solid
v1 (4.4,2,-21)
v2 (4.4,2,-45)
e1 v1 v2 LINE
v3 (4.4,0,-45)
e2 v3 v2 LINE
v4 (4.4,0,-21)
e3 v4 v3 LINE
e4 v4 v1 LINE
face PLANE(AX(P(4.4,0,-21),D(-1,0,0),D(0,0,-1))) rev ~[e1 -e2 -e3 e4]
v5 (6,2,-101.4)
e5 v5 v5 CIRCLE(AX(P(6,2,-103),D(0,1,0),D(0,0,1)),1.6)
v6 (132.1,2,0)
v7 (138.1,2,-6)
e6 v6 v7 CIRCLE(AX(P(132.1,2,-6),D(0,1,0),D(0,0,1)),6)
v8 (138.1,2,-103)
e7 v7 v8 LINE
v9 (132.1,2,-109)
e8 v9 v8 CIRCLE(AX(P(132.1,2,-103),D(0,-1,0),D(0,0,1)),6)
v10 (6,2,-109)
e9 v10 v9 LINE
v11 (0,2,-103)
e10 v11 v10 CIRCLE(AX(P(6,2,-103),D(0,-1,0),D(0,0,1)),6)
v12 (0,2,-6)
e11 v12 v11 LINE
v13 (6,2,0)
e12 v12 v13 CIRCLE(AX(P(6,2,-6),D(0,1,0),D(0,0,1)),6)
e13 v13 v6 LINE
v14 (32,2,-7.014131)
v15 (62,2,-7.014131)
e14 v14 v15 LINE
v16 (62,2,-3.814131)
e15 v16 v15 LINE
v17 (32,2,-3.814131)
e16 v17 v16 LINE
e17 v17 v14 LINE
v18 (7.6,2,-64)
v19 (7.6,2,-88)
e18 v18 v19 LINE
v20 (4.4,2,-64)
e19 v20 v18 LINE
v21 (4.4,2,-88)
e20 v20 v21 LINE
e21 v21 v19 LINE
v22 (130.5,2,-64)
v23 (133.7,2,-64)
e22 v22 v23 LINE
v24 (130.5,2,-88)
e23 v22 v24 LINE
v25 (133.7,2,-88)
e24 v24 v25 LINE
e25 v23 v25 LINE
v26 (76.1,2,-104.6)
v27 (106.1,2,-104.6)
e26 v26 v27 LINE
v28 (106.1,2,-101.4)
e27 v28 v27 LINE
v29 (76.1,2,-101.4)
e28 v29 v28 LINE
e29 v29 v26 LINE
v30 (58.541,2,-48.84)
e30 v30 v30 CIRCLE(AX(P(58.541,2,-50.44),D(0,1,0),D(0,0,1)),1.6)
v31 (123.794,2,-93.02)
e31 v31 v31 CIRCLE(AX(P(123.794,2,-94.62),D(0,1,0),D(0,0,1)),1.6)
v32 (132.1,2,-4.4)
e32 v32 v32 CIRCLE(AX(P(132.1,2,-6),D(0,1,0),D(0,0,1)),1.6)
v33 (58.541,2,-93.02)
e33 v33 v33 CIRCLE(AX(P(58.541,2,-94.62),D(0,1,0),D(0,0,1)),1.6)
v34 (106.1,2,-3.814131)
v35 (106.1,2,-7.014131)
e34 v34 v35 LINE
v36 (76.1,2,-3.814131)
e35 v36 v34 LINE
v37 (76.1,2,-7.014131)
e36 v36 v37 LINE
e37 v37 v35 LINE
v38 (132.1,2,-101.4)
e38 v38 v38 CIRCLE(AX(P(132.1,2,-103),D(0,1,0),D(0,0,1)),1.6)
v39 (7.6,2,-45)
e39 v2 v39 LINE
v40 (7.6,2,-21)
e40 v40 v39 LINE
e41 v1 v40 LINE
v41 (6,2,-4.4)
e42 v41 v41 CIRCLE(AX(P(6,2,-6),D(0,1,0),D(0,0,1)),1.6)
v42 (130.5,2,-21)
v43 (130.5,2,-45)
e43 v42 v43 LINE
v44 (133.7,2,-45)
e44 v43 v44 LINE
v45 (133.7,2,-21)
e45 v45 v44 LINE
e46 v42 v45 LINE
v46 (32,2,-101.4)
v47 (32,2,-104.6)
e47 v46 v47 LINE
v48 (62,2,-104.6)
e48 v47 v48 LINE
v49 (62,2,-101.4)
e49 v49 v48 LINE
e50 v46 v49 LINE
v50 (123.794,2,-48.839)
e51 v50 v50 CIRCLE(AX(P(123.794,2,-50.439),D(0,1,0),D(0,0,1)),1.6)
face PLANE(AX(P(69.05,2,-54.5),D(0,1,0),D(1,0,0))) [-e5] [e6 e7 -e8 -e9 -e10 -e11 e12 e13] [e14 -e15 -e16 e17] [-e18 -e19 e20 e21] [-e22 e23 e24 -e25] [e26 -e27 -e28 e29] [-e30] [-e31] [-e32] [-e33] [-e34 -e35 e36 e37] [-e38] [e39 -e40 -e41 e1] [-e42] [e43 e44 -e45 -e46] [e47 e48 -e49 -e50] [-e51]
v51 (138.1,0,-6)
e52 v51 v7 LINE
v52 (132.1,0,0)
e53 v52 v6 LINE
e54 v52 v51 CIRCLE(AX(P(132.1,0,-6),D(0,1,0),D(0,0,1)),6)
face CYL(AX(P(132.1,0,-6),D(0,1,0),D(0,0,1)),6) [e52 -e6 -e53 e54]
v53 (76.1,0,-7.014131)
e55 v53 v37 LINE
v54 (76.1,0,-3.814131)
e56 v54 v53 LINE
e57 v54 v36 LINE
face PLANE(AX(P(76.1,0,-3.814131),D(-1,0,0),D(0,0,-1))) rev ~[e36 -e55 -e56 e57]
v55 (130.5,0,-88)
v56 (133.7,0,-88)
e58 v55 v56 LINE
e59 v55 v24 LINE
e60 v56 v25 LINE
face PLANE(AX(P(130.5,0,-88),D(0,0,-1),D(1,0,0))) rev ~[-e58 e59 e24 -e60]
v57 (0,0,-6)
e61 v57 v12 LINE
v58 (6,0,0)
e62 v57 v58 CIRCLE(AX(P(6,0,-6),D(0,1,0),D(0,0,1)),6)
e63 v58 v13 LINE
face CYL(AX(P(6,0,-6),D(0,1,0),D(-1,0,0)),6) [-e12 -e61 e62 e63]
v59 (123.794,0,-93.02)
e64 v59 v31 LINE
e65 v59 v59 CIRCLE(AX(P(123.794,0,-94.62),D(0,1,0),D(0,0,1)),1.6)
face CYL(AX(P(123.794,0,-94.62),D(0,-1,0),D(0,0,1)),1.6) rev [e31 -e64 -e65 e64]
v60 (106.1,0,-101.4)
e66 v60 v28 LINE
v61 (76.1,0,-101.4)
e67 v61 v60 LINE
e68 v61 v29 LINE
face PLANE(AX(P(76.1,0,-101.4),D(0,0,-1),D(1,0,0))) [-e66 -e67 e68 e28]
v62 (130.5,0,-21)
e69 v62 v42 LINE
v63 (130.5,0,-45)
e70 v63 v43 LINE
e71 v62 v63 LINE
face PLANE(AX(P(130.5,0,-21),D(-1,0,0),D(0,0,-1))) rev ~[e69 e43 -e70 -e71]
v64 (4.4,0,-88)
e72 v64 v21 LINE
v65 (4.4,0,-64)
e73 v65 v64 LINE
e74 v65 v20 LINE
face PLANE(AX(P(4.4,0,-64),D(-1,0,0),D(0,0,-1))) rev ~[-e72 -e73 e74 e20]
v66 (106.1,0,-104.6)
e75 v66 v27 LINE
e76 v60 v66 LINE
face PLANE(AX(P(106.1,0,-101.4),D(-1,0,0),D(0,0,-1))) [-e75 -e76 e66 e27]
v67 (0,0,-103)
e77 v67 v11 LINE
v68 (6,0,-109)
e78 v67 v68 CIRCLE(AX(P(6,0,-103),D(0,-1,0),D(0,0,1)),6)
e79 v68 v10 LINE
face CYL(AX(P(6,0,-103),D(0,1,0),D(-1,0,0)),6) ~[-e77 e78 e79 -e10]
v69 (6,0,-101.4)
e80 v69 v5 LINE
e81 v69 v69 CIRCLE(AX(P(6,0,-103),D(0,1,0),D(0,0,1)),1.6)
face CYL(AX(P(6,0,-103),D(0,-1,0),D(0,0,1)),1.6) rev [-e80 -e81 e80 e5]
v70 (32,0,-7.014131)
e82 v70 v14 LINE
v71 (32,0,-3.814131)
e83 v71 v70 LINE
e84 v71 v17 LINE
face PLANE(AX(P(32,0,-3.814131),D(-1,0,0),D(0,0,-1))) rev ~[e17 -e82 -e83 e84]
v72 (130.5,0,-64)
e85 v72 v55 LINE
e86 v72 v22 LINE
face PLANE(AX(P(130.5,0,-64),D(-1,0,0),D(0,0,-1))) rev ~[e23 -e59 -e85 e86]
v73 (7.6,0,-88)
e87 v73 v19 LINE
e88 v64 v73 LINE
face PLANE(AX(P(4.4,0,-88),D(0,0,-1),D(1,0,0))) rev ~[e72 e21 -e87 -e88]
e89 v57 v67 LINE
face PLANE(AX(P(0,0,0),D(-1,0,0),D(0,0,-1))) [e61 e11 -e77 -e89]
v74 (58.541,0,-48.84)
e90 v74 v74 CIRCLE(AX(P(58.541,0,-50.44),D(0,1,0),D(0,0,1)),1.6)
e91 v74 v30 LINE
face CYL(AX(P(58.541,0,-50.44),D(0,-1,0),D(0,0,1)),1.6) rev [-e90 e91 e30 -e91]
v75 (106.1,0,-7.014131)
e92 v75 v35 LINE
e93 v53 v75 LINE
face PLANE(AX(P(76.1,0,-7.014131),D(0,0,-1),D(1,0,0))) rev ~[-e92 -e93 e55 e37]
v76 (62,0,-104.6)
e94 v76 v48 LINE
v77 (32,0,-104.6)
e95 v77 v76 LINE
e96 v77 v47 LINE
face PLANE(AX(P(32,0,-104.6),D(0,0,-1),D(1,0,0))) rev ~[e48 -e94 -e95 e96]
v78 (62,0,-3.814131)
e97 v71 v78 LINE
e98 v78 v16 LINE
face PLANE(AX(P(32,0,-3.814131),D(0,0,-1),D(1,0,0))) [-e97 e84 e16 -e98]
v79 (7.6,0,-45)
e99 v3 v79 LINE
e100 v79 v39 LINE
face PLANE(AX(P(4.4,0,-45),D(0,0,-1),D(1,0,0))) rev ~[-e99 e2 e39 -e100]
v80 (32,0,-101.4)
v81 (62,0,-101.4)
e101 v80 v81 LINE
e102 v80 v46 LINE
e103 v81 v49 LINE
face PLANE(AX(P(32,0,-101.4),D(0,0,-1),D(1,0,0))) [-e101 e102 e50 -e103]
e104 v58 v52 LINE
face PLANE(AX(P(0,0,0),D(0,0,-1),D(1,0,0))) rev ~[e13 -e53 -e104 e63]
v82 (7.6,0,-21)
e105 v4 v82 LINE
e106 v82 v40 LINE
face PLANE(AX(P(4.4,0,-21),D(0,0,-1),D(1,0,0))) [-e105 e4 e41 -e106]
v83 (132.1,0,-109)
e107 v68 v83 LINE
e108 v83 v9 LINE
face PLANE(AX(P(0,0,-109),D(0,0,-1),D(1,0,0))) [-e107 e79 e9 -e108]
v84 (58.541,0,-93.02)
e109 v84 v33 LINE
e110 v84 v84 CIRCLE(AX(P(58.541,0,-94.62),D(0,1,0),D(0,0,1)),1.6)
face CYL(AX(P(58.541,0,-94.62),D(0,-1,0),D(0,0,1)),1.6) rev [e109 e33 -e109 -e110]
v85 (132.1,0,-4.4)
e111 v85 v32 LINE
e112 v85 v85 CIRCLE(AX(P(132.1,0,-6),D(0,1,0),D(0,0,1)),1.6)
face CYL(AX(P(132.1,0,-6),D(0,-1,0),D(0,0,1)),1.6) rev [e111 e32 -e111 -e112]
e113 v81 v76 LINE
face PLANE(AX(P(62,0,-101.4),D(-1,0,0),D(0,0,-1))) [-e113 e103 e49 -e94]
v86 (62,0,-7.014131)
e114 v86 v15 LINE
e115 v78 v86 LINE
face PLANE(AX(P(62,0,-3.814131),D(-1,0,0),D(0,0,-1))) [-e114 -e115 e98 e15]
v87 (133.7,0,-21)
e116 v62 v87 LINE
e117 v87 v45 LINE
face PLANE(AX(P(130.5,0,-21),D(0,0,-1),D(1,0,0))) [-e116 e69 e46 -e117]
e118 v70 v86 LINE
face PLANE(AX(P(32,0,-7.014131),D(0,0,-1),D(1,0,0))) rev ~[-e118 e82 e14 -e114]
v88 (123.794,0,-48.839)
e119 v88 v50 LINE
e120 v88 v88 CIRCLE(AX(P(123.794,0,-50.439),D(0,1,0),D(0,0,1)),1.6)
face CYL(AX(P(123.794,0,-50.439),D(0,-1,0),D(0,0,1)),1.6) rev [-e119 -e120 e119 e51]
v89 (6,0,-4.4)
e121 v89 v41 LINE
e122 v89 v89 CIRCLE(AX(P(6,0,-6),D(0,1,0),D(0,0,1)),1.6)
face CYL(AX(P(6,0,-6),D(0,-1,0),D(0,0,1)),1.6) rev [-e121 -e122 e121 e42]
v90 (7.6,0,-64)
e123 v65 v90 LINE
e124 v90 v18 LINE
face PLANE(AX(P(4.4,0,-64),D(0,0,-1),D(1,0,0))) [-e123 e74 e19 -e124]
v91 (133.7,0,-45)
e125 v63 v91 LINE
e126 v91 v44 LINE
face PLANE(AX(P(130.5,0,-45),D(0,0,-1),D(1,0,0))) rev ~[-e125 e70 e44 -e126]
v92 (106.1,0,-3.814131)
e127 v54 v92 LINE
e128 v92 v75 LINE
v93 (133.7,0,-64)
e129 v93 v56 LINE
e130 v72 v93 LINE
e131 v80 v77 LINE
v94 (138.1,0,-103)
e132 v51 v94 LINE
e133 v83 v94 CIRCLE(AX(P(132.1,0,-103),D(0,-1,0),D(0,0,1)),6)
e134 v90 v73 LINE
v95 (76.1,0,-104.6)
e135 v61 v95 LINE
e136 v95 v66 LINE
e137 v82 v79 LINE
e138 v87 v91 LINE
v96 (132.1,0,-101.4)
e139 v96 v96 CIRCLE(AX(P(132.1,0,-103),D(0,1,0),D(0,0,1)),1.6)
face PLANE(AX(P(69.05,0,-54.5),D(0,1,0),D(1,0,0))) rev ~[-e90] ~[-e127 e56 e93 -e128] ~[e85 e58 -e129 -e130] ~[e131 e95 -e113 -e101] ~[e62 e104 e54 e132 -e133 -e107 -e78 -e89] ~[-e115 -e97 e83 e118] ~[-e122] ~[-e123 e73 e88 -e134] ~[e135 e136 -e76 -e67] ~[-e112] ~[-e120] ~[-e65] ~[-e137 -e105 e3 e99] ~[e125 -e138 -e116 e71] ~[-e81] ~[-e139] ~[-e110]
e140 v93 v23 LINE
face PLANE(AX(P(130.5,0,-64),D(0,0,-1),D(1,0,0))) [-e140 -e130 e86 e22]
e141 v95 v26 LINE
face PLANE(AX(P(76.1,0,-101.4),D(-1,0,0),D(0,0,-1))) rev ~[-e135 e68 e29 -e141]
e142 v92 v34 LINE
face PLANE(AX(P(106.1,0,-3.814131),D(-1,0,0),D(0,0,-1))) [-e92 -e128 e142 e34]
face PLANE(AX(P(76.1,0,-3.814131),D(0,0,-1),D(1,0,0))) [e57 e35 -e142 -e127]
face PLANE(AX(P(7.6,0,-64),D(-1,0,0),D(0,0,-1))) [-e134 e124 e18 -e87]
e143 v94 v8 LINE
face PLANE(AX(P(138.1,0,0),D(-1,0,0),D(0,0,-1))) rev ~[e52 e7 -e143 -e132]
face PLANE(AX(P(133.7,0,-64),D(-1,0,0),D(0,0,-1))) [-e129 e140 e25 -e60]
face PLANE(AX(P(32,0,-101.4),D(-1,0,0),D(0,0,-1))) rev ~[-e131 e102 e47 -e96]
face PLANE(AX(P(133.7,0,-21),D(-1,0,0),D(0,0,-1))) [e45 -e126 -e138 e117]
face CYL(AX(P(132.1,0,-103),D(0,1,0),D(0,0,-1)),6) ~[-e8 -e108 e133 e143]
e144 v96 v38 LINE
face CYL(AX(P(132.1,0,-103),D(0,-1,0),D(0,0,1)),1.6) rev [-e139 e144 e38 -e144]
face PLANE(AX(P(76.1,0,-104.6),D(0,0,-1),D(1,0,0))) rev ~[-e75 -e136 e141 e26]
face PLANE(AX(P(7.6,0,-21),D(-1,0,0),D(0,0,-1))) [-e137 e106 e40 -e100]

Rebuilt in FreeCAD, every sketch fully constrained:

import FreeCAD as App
import Part
import Sketcher

V = App.Vector


def edges_at(feature, points):
    """Names of the edges that pass closest to the given points."""
    edges = feature.Shape.Edges
    near = lambda p: min(range(len(edges)), key=lambda i: edges[i].distToShape(Part.Vertex(*p))[0])
    return sorted({f"Edge{near(p) + 1}" for p in points})


def add_polygon(sketch, points):
    """Adds a closed chain of lines whose ends are joined by coincident constraints."""
    first, n = sketch.GeometryCount, len(points)
    for a, b in zip(points, points[1:] + points[:1]):
        sketch.addGeometry(Part.LineSegment(App.Vector(*a, 0), App.Vector(*b, 0)), False)
    for i in range(n):
        sketch.addConstraint(Sketcher.Constraint("Coincident", first + i, 2, first + (i + 1) % n, 1))

doc = App.newDocument("Part")
body = doc.addObject("PartDesign::Body", "Body")

# Sketch on XZ plane
sketch1 = doc.addObject("Sketcher::SketchObject", "Sketch")
body.addObject(sketch1)
sketch1.AttachmentSupport = (doc.XZ_Plane, [""])
sketch1.MapMode = "FlatFace"
add_polygon(sketch1, [(0, -109), (0, 0), (138.1, 0), (138.1, -109)])  # lines 0-3
sketch1.addGeometry(Part.Circle(V(6, -6, 0), V(0, 0, 1), 1.6), False)  # 4
add_polygon(sketch1, [(62, -3.8), (32, -3.8), (32, -7), (62, -7)])  # lines 5-8
add_polygon(sketch1, [(7.6, -21), (4.4, -21), (4.4, -45), (7.6, -45)])  # lines 9-12
sketch1.addGeometry(Part.Circle(V(58.5, -50.4, 0), V(0, 0, 1), 1.6), False)  # 13
add_polygon(sketch1, [(106.1, -3.8), (76.1, -3.8), (76.1, -7), (106.1, -7)])  # lines 14-17
sketch1.addGeometry(Part.Circle(V(132.1, -6, 0), V(0, 0, 1), 1.6), False)  # 18
add_polygon(sketch1, [(133.7, -21), (130.5, -21), (130.5, -45), (133.7, -45)])  # lines 19-22
sketch1.addGeometry(Part.Circle(V(123.8, -50.4, 0), V(0, 0, 1), 1.6), False)  # 23
add_polygon(sketch1, [(7.6, -64), (4.4, -64), (4.4, -88), (7.6, -88)])  # lines 24-27
sketch1.addGeometry(Part.Circle(V(6, -103, 0), V(0, 0, 1), 1.6), False)  # 28
add_polygon(sketch1, [(62, -101.4), (32, -101.4), (32, -104.6), (62, -104.6)])  # lines 29-32
sketch1.addGeometry(Part.Circle(V(58.5, -94.6, 0), V(0, 0, 1), 1.6), False)  # 33
add_polygon(sketch1, [(133.7, -64), (130.5, -64), (130.5, -88), (133.7, -88)])  # lines 34-37
add_polygon(sketch1, [(106.1, -101.4), (76.1, -101.4), (76.1, -104.6), (106.1, -104.6)])  # lines 38-41
sketch1.addGeometry(Part.Circle(V(123.8, -94.6, 0), V(0, 0, 1), 1.6), False)  # 42
sketch1.addGeometry(Part.Circle(V(132.1, -103, 0), V(0, 0, 1), 1.6), False)  # 43
sketch1.addConstraint([
    Sketcher.Constraint("Vertical", 0),
    Sketcher.Constraint("Horizontal", 1),
    Sketcher.Constraint("Vertical", 2),
    Sketcher.Constraint("Horizontal", 3),
    Sketcher.Constraint("Horizontal", 5),
    Sketcher.Constraint("Vertical", 6),
    Sketcher.Constraint("Horizontal", 7),
    Sketcher.Constraint("Vertical", 8),
    Sketcher.Constraint("Horizontal", 9),
    Sketcher.Constraint("Vertical", 10),
    Sketcher.Constraint("Horizontal", 11),
    Sketcher.Constraint("Vertical", 12),
    Sketcher.Constraint("Horizontal", 14),
    Sketcher.Constraint("Vertical", 15),
    Sketcher.Constraint("Horizontal", 16),
    Sketcher.Constraint("Vertical", 17),
    Sketcher.Constraint("Horizontal", 19),
    Sketcher.Constraint("Vertical", 20),
    Sketcher.Constraint("Horizontal", 21),
    Sketcher.Constraint("Vertical", 22),
    Sketcher.Constraint("Horizontal", 24),
    Sketcher.Constraint("Vertical", 25),
    Sketcher.Constraint("Horizontal", 26),
    Sketcher.Constraint("Vertical", 27),
    Sketcher.Constraint("Horizontal", 29),
    Sketcher.Constraint("Vertical", 30),
    Sketcher.Constraint("Horizontal", 31),
    Sketcher.Constraint("Vertical", 32),
    Sketcher.Constraint("Horizontal", 34),
    Sketcher.Constraint("Vertical", 35),
    Sketcher.Constraint("Horizontal", 36),
    Sketcher.Constraint("Vertical", 37),
    Sketcher.Constraint("Horizontal", 38),
    Sketcher.Constraint("Vertical", 39),
    Sketcher.Constraint("Horizontal", 40),
    Sketcher.Constraint("Vertical", 41),
    Sketcher.Constraint("Coincident", 0, 2, -1, 1),
    Sketcher.Constraint("Equal", 4, 13),
    Sketcher.Constraint("Equal", 13, 18),
    Sketcher.Constraint("Equal", 18, 23),
    Sketcher.Constraint("Equal", 23, 28),
    Sketcher.Constraint("Equal", 28, 33),
    Sketcher.Constraint("Equal", 33, 42),
    Sketcher.Constraint("Equal", 42, 43),
    Sketcher.Constraint("Horizontal", 4, 3, 18, 3),
    Sketcher.Constraint("Horizontal", 33, 3, 42, 3),
    Sketcher.Constraint("Horizontal", 28, 3, 43, 3),
    Sketcher.Constraint("Horizontal", 8, 2, 14, 2),
    Sketcher.Constraint("Horizontal", 7, 2, 15, 2),
    Sketcher.Constraint("Horizontal", 12, 2, 19, 2),
    Sketcher.Constraint("Horizontal", 11, 2, 20, 2),
    Sketcher.Constraint("Horizontal", 27, 2, 34, 2),
    Sketcher.Constraint("Horizontal", 26, 2, 35, 2),
    Sketcher.Constraint("Horizontal", 32, 2, 38, 2),
    Sketcher.Constraint("Horizontal", 31, 2, 39, 2),
    Sketcher.Constraint("Vertical", 4, 3, 28, 3),
    Sketcher.Constraint("Vertical", 13, 3, 33, 3),
    Sketcher.Constraint("Vertical", 23, 3, 42, 3),
    Sketcher.Constraint("Vertical", 18, 3, 43, 3),
    Sketcher.Constraint("Vertical", 10, 2, 24, 2),
    Sketcher.Constraint("Vertical", 12, 2, 26, 2),
    Sketcher.Constraint("Vertical", 6, 2, 29, 2),
    Sketcher.Constraint("Vertical", 8, 2, 31, 2),
    Sketcher.Constraint("Vertical", 20, 2, 34, 2),
    Sketcher.Constraint("Vertical", 22, 2, 36, 2),
    Sketcher.Constraint("Vertical", 15, 2, 38, 2),
    Sketcher.Constraint("Vertical", 17, 2, 40, 2),
    Sketcher.Constraint("Equal", 7, 14),
    Sketcher.Constraint("Equal", 11, 19),
    Sketcher.Constraint("Equal", 36, 6),
    Sketcher.Constraint("Equal", 22, 25),
    Sketcher.Constraint("Equal", 17, 30),
    Sketcher.Constraint("Diameter", 4, 3.2),
    Sketcher.Constraint("DistanceX", 5, 2, 5, 1, 30.0),
    Sketcher.Constraint("DistanceY", 0, 1, 0, 2, 109.0),
    Sketcher.Constraint("DistanceY", 10, 2, 10, 1, 24.0),
    Sketcher.Constraint("DistanceX", 1, 1, 1, 2, 138.1),
    Sketcher.Constraint("DistanceX", 9, 2, 9, 1, 3.2),
    Sketcher.Constraint("DistanceX", -1, 1, 4, 3, 6.0),
    Sketcher.Constraint("DistanceY", 4, 3, -1, 1, 6.0),
    Sketcher.Constraint("DistanceY", 28, 3, -1, 1, 103.0),
    Sketcher.Constraint("DistanceX", -1, 1, 5, 2, 32.0),
    Sketcher.Constraint("DistanceY", 9, 2, -1, 1, 21.0),
    Sketcher.Constraint("DistanceY", 24, 2, -1, 1, 64.0),
    Sketcher.Constraint("DistanceX", 18, 3, 1, 2, 6.0),
    Sketcher.Constraint("DistanceX", 16, 2, 18, 3, 26.0),
    Sketcher.Constraint("DistanceX", -1, 1, 9, 2, 4.4),
    Sketcher.Constraint("DistanceX", -1, 1, 19, 2, 130.5),
    Sketcher.Constraint("DistanceY", 29, 2, -1, 1, 101.4),
    Sketcher.Constraint("DistanceY", 13, 3, -1, 1, 50.44),
    Sketcher.Constraint("DistanceY", 33, 3, -1, 1, 94.62),
    Sketcher.Constraint("DistanceX", -1, 1, 13, 3, 58.541),
    Sketcher.Constraint("DistanceX", -1, 1, 23, 3, 123.794),
    Sketcher.Constraint("DistanceY", 23, 3, -1, 1, 50.439),
    Sketcher.Constraint("DistanceY", 5, 2, -1, 1, 3.814131),
])
pad1 = doc.addObject("PartDesign::Pad", "Pad")
body.addObject(pad1)
pad1.Profile = sketch1
pad1.Length = 2
pad1.Reversed = True
doc.recompute()

fillet = doc.addObject("PartDesign::Fillet", "Fillet")
body.addObject(fillet)
fillet.Base = (pad1, edges_at(pad1, [(0, 1, -109)]))
fillet.Radius = 6
doc.recompute()

fillet2 = doc.addObject("PartDesign::Fillet", "Fillet001")
body.addObject(fillet2)
fillet2.Base = (fillet, edges_at(fillet, [(0, 1, 0)]))
fillet2.Radius = 6
doc.recompute()

fillet3 = doc.addObject("PartDesign::Fillet", "Fillet002")
body.addObject(fillet3)
fillet3.Base = (fillet2, edges_at(fillet2, [(138.1, 1, -109), (138.1, 1, 0)]))
fillet3.Radius = 6

doc.recompute()
